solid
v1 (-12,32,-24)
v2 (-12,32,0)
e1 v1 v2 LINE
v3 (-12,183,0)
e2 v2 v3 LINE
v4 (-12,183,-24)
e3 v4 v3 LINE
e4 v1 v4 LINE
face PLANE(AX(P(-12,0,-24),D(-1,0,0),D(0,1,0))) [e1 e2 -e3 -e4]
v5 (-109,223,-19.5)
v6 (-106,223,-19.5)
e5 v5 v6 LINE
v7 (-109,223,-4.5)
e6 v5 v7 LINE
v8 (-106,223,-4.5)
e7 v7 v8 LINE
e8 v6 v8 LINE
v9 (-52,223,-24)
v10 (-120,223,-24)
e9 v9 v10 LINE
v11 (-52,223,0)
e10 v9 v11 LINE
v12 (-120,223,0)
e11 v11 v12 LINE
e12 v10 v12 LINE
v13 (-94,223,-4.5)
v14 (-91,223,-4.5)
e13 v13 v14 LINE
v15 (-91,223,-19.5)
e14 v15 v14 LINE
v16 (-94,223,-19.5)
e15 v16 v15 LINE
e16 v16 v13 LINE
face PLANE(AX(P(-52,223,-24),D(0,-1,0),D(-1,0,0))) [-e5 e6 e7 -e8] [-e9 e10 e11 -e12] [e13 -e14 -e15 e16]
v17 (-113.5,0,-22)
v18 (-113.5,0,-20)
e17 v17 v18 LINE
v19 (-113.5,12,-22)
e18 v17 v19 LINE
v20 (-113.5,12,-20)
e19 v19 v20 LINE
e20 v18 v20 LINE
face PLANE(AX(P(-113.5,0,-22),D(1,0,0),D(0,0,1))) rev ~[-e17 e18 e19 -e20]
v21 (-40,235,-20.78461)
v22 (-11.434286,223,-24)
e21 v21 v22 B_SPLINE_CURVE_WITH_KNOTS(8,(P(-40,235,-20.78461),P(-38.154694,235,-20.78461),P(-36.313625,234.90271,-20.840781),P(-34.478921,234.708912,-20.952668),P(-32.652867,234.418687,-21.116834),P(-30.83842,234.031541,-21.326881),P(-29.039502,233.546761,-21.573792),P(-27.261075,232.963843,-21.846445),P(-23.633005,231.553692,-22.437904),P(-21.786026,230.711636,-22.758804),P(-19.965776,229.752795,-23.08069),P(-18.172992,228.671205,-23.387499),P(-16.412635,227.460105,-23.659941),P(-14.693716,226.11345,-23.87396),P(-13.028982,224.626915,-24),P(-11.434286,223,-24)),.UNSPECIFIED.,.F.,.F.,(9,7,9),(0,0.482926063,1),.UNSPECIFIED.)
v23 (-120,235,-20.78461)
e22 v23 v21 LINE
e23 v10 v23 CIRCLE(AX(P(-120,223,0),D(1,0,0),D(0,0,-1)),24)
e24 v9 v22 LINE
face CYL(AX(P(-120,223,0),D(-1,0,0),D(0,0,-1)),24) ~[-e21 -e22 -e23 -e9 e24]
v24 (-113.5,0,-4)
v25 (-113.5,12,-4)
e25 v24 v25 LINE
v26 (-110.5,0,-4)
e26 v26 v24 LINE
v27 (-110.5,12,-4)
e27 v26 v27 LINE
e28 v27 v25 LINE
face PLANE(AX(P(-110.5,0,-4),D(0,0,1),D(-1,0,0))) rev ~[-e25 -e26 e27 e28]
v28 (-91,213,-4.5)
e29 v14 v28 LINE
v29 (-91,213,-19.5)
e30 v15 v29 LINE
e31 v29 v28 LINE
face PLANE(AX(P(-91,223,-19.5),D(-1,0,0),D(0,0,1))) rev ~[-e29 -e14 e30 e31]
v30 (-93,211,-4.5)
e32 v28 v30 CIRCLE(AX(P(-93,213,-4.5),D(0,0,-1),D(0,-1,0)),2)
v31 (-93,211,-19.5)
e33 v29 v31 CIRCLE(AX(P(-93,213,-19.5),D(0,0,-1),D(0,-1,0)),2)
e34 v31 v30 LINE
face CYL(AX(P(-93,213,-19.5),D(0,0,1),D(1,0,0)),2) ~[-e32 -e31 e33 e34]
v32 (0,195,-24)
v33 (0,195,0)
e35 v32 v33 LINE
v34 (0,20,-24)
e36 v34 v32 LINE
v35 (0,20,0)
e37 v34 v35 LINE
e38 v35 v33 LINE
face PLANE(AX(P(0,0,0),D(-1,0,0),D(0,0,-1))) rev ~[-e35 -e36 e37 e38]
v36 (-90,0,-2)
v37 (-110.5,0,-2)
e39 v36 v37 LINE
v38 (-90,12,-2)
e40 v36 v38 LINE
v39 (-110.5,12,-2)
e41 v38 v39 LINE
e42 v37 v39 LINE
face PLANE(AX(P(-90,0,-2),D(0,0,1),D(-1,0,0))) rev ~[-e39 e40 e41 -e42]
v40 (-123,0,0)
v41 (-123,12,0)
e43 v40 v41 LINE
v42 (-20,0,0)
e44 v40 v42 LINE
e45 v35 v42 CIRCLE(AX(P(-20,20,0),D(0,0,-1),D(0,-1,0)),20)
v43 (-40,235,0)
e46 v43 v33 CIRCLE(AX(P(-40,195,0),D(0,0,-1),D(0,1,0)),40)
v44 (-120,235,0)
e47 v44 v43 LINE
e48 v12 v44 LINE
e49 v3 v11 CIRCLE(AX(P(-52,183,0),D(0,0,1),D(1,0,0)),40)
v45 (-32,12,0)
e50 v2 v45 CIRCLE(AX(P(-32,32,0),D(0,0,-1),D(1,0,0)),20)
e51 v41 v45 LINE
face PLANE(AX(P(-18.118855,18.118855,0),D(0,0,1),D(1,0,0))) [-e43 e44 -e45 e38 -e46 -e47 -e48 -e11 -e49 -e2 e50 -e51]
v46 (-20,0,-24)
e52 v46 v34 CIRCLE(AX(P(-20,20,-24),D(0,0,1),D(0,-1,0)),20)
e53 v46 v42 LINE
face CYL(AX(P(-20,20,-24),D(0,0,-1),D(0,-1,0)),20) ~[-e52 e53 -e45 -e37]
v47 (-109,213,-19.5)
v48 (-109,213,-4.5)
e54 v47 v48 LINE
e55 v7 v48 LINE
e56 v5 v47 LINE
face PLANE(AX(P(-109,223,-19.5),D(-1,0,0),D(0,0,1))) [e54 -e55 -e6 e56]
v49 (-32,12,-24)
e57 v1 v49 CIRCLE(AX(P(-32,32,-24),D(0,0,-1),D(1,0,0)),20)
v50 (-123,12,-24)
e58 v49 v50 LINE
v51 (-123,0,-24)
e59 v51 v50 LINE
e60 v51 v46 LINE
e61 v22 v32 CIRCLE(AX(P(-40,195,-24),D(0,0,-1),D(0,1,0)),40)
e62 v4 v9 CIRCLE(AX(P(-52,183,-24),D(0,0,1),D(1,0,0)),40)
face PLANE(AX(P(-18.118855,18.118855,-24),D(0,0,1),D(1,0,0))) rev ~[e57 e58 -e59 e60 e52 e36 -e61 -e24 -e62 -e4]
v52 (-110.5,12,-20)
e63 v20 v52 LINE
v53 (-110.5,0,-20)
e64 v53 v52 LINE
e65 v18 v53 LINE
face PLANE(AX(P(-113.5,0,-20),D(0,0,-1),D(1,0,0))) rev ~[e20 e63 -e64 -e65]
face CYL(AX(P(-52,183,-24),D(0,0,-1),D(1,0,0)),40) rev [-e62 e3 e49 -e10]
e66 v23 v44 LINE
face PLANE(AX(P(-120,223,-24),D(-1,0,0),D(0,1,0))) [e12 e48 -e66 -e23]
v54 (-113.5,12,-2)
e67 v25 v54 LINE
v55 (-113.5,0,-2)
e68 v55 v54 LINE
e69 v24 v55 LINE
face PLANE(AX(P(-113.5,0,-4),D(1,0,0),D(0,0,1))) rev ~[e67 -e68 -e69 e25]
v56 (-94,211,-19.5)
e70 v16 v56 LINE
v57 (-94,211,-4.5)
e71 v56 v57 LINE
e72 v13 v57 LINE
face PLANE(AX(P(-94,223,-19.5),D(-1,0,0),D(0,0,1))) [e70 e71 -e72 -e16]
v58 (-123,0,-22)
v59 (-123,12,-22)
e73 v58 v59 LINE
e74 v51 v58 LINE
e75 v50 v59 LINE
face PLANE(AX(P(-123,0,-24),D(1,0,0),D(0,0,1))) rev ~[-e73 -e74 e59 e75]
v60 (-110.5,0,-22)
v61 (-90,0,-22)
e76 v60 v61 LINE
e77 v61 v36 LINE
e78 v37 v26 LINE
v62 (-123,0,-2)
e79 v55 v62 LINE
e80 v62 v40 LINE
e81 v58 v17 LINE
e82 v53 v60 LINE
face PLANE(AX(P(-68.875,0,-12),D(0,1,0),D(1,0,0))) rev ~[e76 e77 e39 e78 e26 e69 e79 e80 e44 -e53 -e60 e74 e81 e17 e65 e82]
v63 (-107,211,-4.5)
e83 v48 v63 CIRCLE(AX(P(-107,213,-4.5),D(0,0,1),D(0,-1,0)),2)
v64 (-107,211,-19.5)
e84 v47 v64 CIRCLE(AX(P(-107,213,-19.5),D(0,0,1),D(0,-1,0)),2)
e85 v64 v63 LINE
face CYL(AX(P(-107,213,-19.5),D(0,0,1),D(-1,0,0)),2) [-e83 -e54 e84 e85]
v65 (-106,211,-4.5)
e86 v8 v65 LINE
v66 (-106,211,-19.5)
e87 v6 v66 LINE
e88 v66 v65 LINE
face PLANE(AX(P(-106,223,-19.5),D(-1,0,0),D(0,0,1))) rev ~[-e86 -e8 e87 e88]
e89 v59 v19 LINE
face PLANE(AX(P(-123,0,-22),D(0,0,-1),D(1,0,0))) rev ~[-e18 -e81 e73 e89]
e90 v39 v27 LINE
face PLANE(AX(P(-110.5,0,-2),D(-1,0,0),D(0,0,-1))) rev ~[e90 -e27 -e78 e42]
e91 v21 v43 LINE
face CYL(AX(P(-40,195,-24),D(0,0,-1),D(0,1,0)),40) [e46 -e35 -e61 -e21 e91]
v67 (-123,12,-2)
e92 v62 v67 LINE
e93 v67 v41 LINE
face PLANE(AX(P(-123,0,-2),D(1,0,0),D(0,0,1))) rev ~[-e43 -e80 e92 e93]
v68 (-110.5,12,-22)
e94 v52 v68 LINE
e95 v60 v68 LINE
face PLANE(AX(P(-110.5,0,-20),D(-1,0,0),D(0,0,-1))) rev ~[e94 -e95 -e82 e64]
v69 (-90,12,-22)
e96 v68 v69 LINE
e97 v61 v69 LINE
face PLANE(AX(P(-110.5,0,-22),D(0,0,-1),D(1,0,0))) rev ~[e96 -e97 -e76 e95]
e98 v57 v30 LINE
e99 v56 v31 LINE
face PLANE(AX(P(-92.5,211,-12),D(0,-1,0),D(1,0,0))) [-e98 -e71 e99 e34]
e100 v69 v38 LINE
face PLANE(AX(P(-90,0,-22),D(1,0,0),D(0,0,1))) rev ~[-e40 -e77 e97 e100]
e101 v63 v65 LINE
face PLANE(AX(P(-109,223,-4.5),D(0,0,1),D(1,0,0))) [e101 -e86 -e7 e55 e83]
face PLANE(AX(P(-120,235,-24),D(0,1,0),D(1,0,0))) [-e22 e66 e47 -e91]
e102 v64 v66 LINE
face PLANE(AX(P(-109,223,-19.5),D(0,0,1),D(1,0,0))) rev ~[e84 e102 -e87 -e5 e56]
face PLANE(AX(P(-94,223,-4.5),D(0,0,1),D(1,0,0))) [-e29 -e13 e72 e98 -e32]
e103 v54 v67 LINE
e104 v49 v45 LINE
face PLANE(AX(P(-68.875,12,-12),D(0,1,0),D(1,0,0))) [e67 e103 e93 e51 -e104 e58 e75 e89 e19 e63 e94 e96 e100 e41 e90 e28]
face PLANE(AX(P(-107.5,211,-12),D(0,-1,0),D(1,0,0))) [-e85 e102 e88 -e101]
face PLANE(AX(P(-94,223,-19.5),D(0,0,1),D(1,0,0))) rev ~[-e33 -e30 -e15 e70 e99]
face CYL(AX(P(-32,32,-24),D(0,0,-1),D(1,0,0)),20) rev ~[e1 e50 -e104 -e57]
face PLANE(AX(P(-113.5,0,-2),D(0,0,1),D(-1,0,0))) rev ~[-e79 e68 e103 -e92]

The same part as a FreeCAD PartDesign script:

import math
import FreeCAD as App
import Part
import Sketcher
Q = App.Units.Quantity


def edges_at(feature, points):
    """Names of the edges that pass closest to the given points."""
    edges = feature.Shape.Edges
    near = lambda p: min(range(len(edges)), key=lambda i: edges[i].distToShape(Part.Vertex(*p))[0])
    return sorted({f"Edge{near(p) + 1}" for p in points})

doc = App.newDocument("Part")
body = doc.addObject("PartDesign::Body", "Body")

sketch1 = doc.addObject("Sketcher::SketchObject", "Sketch")
body.addObject(sketch1)
sketch1.AttachmentSupport = (doc.XZ_Plane, [""])
sketch1.MapMode = "FlatFace"
sketch1.addGeometry(Part.LineSegment(App.Vector(-123, -2, 0), App.Vector(-123, 0, 0)), False)
sketch1.addGeometry(Part.LineSegment(App.Vector(-123, 0, 0), App.Vector(0, 0, 0)), False)
sketch1.addGeometry(Part.LineSegment(App.Vector(0, 0, 0), App.Vector(0, -24, 0)), False)
sketch1.addGeometry(Part.LineSegment(App.Vector(0, -24, 0), App.Vector(-123, -24, 0)), False)
sketch1.addGeometry(Part.LineSegment(App.Vector(-123, -24, 0), App.Vector(-123, -22, 0)), False)
sketch1.addGeometry(Part.LineSegment(App.Vector(-123, -22, 0), App.Vector(-113.5, -22, 0)), False)
sketch1.addGeometry(Part.LineSegment(App.Vector(-113.5, -22, 0), App.Vector(-113.5, -20, 0)), False)
sketch1.addGeometry(Part.LineSegment(App.Vector(-113.5, -20, 0), App.Vector(-110.5, -20, 0)), False)
sketch1.addGeometry(Part.LineSegment(App.Vector(-110.5, -20, 0), App.Vector(-110.5, -22, 0)), False)
sketch1.addGeometry(Part.LineSegment(App.Vector(-110.5, -22, 0), App.Vector(-90, -22, 0)), False)
sketch1.addGeometry(Part.LineSegment(App.Vector(-90, -22, 0), App.Vector(-90, -2, 0)), False)
sketch1.addGeometry(Part.LineSegment(App.Vector(-90, -2, 0), App.Vector(-110.5, -2, 0)), False)
sketch1.addGeometry(Part.LineSegment(App.Vector(-110.5, -2, 0), App.Vector(-110.5, -4, 0)), False)
sketch1.addGeometry(Part.LineSegment(App.Vector(-110.5, -4, 0), App.Vector(-113.5, -4, 0)), False)
sketch1.addGeometry(Part.LineSegment(App.Vector(-113.5, -4, 0), App.Vector(-113.5, -2, 0)), False)
sketch1.addGeometry(Part.LineSegment(App.Vector(-113.5, -2, 0), App.Vector(-123, -2, 0)), False)
sketch1.addConstraint(Sketcher.Constraint("Coincident", 0, 2, 1, 1))
sketch1.addConstraint(Sketcher.Constraint("Coincident", 1, 2, 2, 1))
sketch1.addConstraint(Sketcher.Constraint("Coincident", 2, 2, 3, 1))
sketch1.addConstraint(Sketcher.Constraint("Coincident", 3, 2, 4, 1))
sketch1.addConstraint(Sketcher.Constraint("Coincident", 4, 2, 5, 1))
sketch1.addConstraint(Sketcher.Constraint("Coincident", 5, 2, 6, 1))
sketch1.addConstraint(Sketcher.Constraint("Coincident", 6, 2, 7, 1))
sketch1.addConstraint(Sketcher.Constraint("Coincident", 7, 2, 8, 1))
sketch1.addConstraint(Sketcher.Constraint("Coincident", 8, 2, 9, 1))
sketch1.addConstraint(Sketcher.Constraint("Coincident", 9, 2, 10, 1))
sketch1.addConstraint(Sketcher.Constraint("Coincident", 10, 2, 11, 1))
sketch1.addConstraint(Sketcher.Constraint("Coincident", 11, 2, 12, 1))
sketch1.addConstraint(Sketcher.Constraint("Coincident", 12, 2, 13, 1))
sketch1.addConstraint(Sketcher.Constraint("Coincident", 13, 2, 14, 1))
sketch1.addConstraint(Sketcher.Constraint("Coincident", 14, 2, 15, 1))
sketch1.addConstraint(Sketcher.Constraint("Coincident", 15, 2, 0, 1))
sketch1.addConstraint(Sketcher.Constraint("Vertical", 0))
sketch1.addConstraint(Sketcher.Constraint("Horizontal", 1))
sketch1.addConstraint(Sketcher.Constraint("Vertical", 2))
sketch1.addConstraint(Sketcher.Constraint("Horizontal", 3))
sketch1.addConstraint(Sketcher.Constraint("Vertical", 4))
sketch1.addConstraint(Sketcher.Constraint("Horizontal", 5))
sketch1.addConstraint(Sketcher.Constraint("Vertical", 6))
sketch1.addConstraint(Sketcher.Constraint("Horizontal", 7))
sketch1.addConstraint(Sketcher.Constraint("Vertical", 8))
sketch1.addConstraint(Sketcher.Constraint("Horizontal", 9))
sketch1.addConstraint(Sketcher.Constraint("Vertical", 10))
sketch1.addConstraint(Sketcher.Constraint("Horizontal", 11))
sketch1.addConstraint(Sketcher.Constraint("Vertical", 12))
sketch1.addConstraint(Sketcher.Constraint("Horizontal", 13))
sketch1.addConstraint(Sketcher.Constraint("Vertical", 14))
sketch1.addConstraint(Sketcher.Constraint("Horizontal", 15))
sketch1.addConstraint(Sketcher.Constraint("Coincident", 1, 2, -1, 1))
sketch1.addConstraint(Sketcher.Constraint("Horizontal", 5, 2, 8, 2))
sketch1.addConstraint(Sketcher.Constraint("Horizontal", 11, 2, 14, 2))
sketch1.addConstraint(Sketcher.Constraint("Vertical", 0, 2, 3, 2))
sketch1.addConstraint(Sketcher.Constraint("Vertical", 8, 2, 11, 2))
sketch1.addConstraint(Sketcher.Constraint("Vertical", 6, 2, 13, 2))
sketch1.addConstraint(Sketcher.Constraint("Equal", 0, 4))
sketch1.addConstraint(Sketcher.Constraint("Equal", 4, 6))
sketch1.addConstraint(Sketcher.Constraint("Equal", 8, 12))
sketch1.addConstraint(Sketcher.Constraint("DistanceX", 1, 1, 1, 2, Q("123 mm")))
sketch1.addConstraint(Sketcher.Constraint("DistanceX", 7, 1, 7, 2, Q("3 mm")))
sketch1.addConstraint(Sketcher.Constraint("DistanceY", 0, 1, 0, 2, Q("2 mm")))
sketch1.addConstraint(Sketcher.Constraint("DistanceY", 2, 2, 2, 1, Q("24 mm")))
sketch1.addConstraint(Sketcher.Constraint("DistanceX", 5, 1, 5, 2, Q("9.5 mm")))
sketch1.addConstraint(Sketcher.Constraint("DistanceX", 9, 1, 9, 2, Q("20.5 mm")))
pad1 = doc.addObject("PartDesign::Pad", "Pad")
body.addObject(pad1)
pad1.Profile = sketch1
pad1.Length = 12
pad1.Reversed = True

sketch2 = doc.addObject("Sketcher::SketchObject", "Sketch001")
body.addObject(sketch2)
sketch2.AttachmentSupport = (doc.XY_Plane, [""])
sketch2.MapMode = "FlatFace"
sketch2.AttachmentOffset = App.Placement(App.Vector(0, 0, -24), App.Rotation())
sketch2.addGeometry(Part.LineSegment(App.Vector(0, 0, 0), App.Vector(-12, 0, 0)), False)
sketch2.addGeometry(Part.LineSegment(App.Vector(-12, 0, 0), App.Vector(-12, 183, 0)), False)
sketch2.addGeometry(Part.ArcOfCircle(Part.Circle(App.Vector(-52, 183, 0), App.Vector(0, 0, 1), 40), math.radians(0), math.radians(90)), False)
sketch2.addGeometry(Part.LineSegment(App.Vector(-52, 223, 0), App.Vector(-120, 223, 0)), False)
sketch2.addGeometry(Part.LineSegment(App.Vector(-120, 223, 0), App.Vector(-120, 235, 0)), False)
sketch2.addGeometry(Part.LineSegment(App.Vector(-120, 235, 0), App.Vector(-40, 235, 0)), False)
sketch2.addGeometry(Part.ArcOfCircle(Part.Circle(App.Vector(-40, 195, 0), App.Vector(0, 0, 1), 40), math.radians(0), math.radians(90)), False)
sketch2.addGeometry(Part.LineSegment(App.Vector(0, 195, 0), App.Vector(0, 0, 0)), False)
sketch2.addConstraint(Sketcher.Constraint("Coincident", 0, 2, 1, 1))
sketch2.addConstraint(Sketcher.Constraint("Tangent", 1, 2, 2, 1))
sketch2.addConstraint(Sketcher.Constraint("Tangent", 2, 2, 3, 1))
sketch2.addConstraint(Sketcher.Constraint("Coincident", 3, 2, 4, 1))
sketch2.addConstraint(Sketcher.Constraint("Coincident", 4, 2, 5, 1))
sketch2.addConstraint(Sketcher.Constraint("Tangent", 5, 2, 6, 2))
sketch2.addConstraint(Sketcher.Constraint("Tangent", 6, 1, 7, 1))
sketch2.addConstraint(Sketcher.Constraint("Coincident", 7, 2, 0, 1))
sketch2.addConstraint(Sketcher.Constraint("Horizontal", 0))
sketch2.addConstraint(Sketcher.Constraint("Vertical", 1))
sketch2.addConstraint(Sketcher.Constraint("Horizontal", 3))
sketch2.addConstraint(Sketcher.Constraint("Vertical", 4))
sketch2.addConstraint(Sketcher.Constraint("Horizontal", 5))
sketch2.addConstraint(Sketcher.Constraint("Vertical", 7))
sketch2.addConstraint(Sketcher.Constraint("Coincident", 7, 2, -1, 1))
sketch2.addConstraint(Sketcher.Constraint("Equal", 2, 6))
sketch2.addConstraint(Sketcher.Constraint("Equal", 0, 4))
sketch2.addConstraint(Sketcher.Constraint("Radius", 2, Q("40 mm")))
sketch2.addConstraint(Sketcher.Constraint("DistanceX", 0, 2, 0, 1, Q("12 mm")))
sketch2.addConstraint(Sketcher.Constraint("DistanceX", 3, 2, 3, 1, Q("68 mm")))
sketch2.addConstraint(Sketcher.Constraint("DistanceY", 1, 1, 1, 2, Q("183 mm")))
pad2 = doc.addObject("PartDesign::Pad", "Pad001")
body.addObject(pad2)
pad2.Profile = sketch2
pad2.Length = 24

sketch3 = doc.addObject("Sketcher::SketchObject", "Sketch002")
body.addObject(sketch3)
sketch3.AttachmentSupport = (doc.XZ_Plane, [""])
sketch3.MapMode = "FlatFace"
sketch3.AttachmentOffset = App.Placement(App.Vector(0, 0, -223), App.Rotation())
sketch3.addGeometry(Part.LineSegment(App.Vector(-109, -4.5, 0), App.Vector(-109, -19.5, 0)), False)
sketch3.addGeometry(Part.LineSegment(App.Vector(-109, -19.5, 0), App.Vector(-106, -19.5, 0)), False)
sketch3.addGeometry(Part.LineSegment(App.Vector(-106, -19.5, 0), App.Vector(-106, -4.5, 0)), False)
sketch3.addGeometry(Part.LineSegment(App.Vector(-106, -4.5, 0), App.Vector(-109, -4.5, 0)), False)
sketch3.addGeometry(Part.LineSegment(App.Vector(-94, -4.5, 0), App.Vector(-94, -19.5, 0)), False)
sketch3.addGeometry(Part.LineSegment(App.Vector(-94, -19.5, 0), App.Vector(-91, -19.5, 0)), False)
sketch3.addGeometry(Part.LineSegment(App.Vector(-91, -19.5, 0), App.Vector(-91, -4.5, 0)), False)
sketch3.addGeometry(Part.LineSegment(App.Vector(-91, -4.5, 0), App.Vector(-94, -4.5, 0)), False)
sketch3.addConstraint(Sketcher.Constraint("Coincident", 0, 2, 1, 1))
sketch3.addConstraint(Sketcher.Constraint("Coincident", 1, 2, 2, 1))
sketch3.addConstraint(Sketcher.Constraint("Coincident", 2, 2, 3, 1))
sketch3.addConstraint(Sketcher.Constraint("Coincident", 3, 2, 0, 1))
sketch3.addConstraint(Sketcher.Constraint("Coincident", 4, 2, 5, 1))
sketch3.addConstraint(Sketcher.Constraint("Coincident", 5, 2, 6, 1))
sketch3.addConstraint(Sketcher.Constraint("Coincident", 6, 2, 7, 1))
sketch3.addConstraint(Sketcher.Constraint("Coincident", 7, 2, 4, 1))
sketch3.addConstraint(Sketcher.Constraint("Vertical", 0))
sketch3.addConstraint(Sketcher.Constraint("Horizontal", 1))
sketch3.addConstraint(Sketcher.Constraint("Vertical", 2))
sketch3.addConstraint(Sketcher.Constraint("Horizontal", 3))
sketch3.addConstraint(Sketcher.Constraint("Vertical", 4))
sketch3.addConstraint(Sketcher.Constraint("Horizontal", 5))
sketch3.addConstraint(Sketcher.Constraint("Vertical", 6))
sketch3.addConstraint(Sketcher.Constraint("Horizontal", 7))
sketch3.addConstraint(Sketcher.Constraint("Horizontal", 1, 2, 4, 2))
sketch3.addConstraint(Sketcher.Constraint("Horizontal", 3, 2, 6, 2))
sketch3.addConstraint(Sketcher.Constraint("Equal", 3, 5))
sketch3.addConstraint(Sketcher.Constraint("DistanceX", 1, 1, 1, 2, Q("3 mm")))
sketch3.addConstraint(Sketcher.Constraint("DistanceY", 0, 2, 0, 1, Q("15 mm")))
sketch3.addConstraint(Sketcher.Constraint("DistanceX", 0, 2, -1, 1, Q("109 mm")))
sketch3.addConstraint(Sketcher.Constraint("DistanceX", 4, 2, -1, 1, Q("94 mm")))
sketch3.addConstraint(Sketcher.Constraint("DistanceY", 0, 2, -1, 1, Q("19.5 mm")))
pad3 = doc.addObject("PartDesign::Pad", "Pad002")
body.addObject(pad3)
pad3.Profile = sketch3
pad3.Length = 12

sketch4 = doc.addObject("Sketcher::SketchObject", "Sketch003")
body.addObject(sketch4)
sketch4.AttachmentSupport = (doc.XY_Plane, [""])
sketch4.MapMode = "FlatFace"
sketch4.AttachmentOffset = App.Placement(App.Vector(0, 0, -24), App.Rotation())
sketch4.addGeometry(Part.LineSegment(App.Vector(-12, 12, 0), App.Vector(-32, 12, 0)), False)
sketch4.addGeometry(Part.ArcOfCircle(Part.Circle(App.Vector(-32, 32, 0), App.Vector(0, 0, 1), 20), math.radians(-90), math.radians(0)), False)
sketch4.addGeometry(Part.LineSegment(App.Vector(-12, 32, 0), App.Vector(-12, 12, 0)), False)
sketch4.addConstraint(Sketcher.Constraint("Tangent", 0, 2, 1, 1))
sketch4.addConstraint(Sketcher.Constraint("Tangent", 1, 2, 2, 1))
sketch4.addConstraint(Sketcher.Constraint("Coincident", 2, 2, 0, 1))
sketch4.addConstraint(Sketcher.Constraint("Horizontal", 0))
sketch4.addConstraint(Sketcher.Constraint("Vertical", 2))
sketch4.addConstraint(Sketcher.Constraint("Radius", 1, Q("20 mm")))
sketch4.addConstraint(Sketcher.Constraint("DistanceX", 1, 3, -1, 1, Q("32 mm")))
sketch4.addConstraint(Sketcher.Constraint("DistanceY", -1, 1, 1, 3, Q("32 mm")))
pad4 = doc.addObject("PartDesign::Pad", "Pad003")
body.addObject(pad4)
pad4.Profile = sketch4
pad4.Length = 24

sketch5 = doc.addObject("Sketcher::SketchObject", "Sketch004")
body.addObject(sketch5)
sketch5.AttachmentSupport = (doc.XY_Plane, [""])
sketch5.MapMode = "FlatFace"
sketch5.AttachmentOffset = App.Placement(App.Vector(0, 0, -24), App.Rotation())
sketch5.addGeometry(Part.LineSegment(App.Vector(0, 20, 0), App.Vector(0, 0, 0)), False)
sketch5.addGeometry(Part.LineSegment(App.Vector(0, 0, 0), App.Vector(-20, 0, 0)), False)
sketch5.addGeometry(Part.ArcOfCircle(Part.Circle(App.Vector(-20, 20, 0), App.Vector(0, 0, 1), 20), math.radians(-90), math.radians(0)), False)
sketch5.addConstraint(Sketcher.Constraint("Coincident", 0, 2, 1, 1))
sketch5.addConstraint(Sketcher.Constraint("Tangent", 1, 2, 2, 1))
sketch5.addConstraint(Sketcher.Constraint("Tangent", 2, 2, 0, 1))
sketch5.addConstraint(Sketcher.Constraint("Vertical", 0))
sketch5.addConstraint(Sketcher.Constraint("Horizontal", 1))
sketch5.addConstraint(Sketcher.Constraint("Coincident", 0, 2, -1, 1))
sketch5.addConstraint(Sketcher.Constraint("Radius", 2, Q("20 mm")))
pocket1 = doc.addObject("PartDesign::Pocket", "Pocket")
body.addObject(pocket1)
pocket1.Profile = sketch5
pocket1.Type = "ThroughAll"
pocket1.Reversed = True

sketch6 = doc.addObject("Sketcher::SketchObject", "Sketch005")
body.addObject(sketch6)
sketch6.AttachmentSupport = (doc.YZ_Plane, [""])
sketch6.MapMode = "FlatFace"
sketch6.AttachmentOffset = App.Placement(App.Vector(0, 0, -120), App.Rotation())
sketch6.addGeometry(Part.LineSegment(App.Vector(235, -24, 0), App.Vector(223, -24, 0)), False)
sketch6.addGeometry(Part.ArcOfCircle(Part.Circle(App.Vector(223, 0, 0), App.Vector(0, 0, 1), 24), math.radians(-90), math.radians(-60)), False)
sketch6.addGeometry(Part.LineSegment(App.Vector(235, -20.78461, 0), App.Vector(235, -24, 0)), False)
sketch6.addConstraint(Sketcher.Constraint("Tangent", 0, 2, 1, 1))
sketch6.addConstraint(Sketcher.Constraint("Coincident", 1, 2, 2, 1))
sketch6.addConstraint(Sketcher.Constraint("Coincident", 2, 2, 0, 1))
sketch6.addConstraint(Sketcher.Constraint("Horizontal", 0))
sketch6.addConstraint(Sketcher.Constraint("Vertical", 2))
sketch6.addConstraint(Sketcher.Constraint("PointOnObject", 1, 3, -1))
sketch6.addConstraint(Sketcher.Constraint("Radius", 1, Q("24 mm")))
sketch6.addConstraint(Sketcher.Constraint("DistanceX", 0, 2, 0, 1, Q("12 mm")))
sketch6.addConstraint(Sketcher.Constraint("DistanceX", -1, 1, 1, 3, Q("223 mm")))
pocket2 = doc.addObject("PartDesign::Pocket", "Pocket001")
body.addObject(pocket2)
pocket2.Profile = sketch6
pocket2.Type = "ThroughAll"
pocket2.Reversed = True
doc.recompute()

fillet = doc.addObject("PartDesign::Fillet", "Fillet")
body.addObject(fillet)
fillet.Base = (pocket2, edges_at(pocket2, [(-109, 211, -12), (-91, 211, -12)]))
fillet.Radius = 2

doc.recompute()
